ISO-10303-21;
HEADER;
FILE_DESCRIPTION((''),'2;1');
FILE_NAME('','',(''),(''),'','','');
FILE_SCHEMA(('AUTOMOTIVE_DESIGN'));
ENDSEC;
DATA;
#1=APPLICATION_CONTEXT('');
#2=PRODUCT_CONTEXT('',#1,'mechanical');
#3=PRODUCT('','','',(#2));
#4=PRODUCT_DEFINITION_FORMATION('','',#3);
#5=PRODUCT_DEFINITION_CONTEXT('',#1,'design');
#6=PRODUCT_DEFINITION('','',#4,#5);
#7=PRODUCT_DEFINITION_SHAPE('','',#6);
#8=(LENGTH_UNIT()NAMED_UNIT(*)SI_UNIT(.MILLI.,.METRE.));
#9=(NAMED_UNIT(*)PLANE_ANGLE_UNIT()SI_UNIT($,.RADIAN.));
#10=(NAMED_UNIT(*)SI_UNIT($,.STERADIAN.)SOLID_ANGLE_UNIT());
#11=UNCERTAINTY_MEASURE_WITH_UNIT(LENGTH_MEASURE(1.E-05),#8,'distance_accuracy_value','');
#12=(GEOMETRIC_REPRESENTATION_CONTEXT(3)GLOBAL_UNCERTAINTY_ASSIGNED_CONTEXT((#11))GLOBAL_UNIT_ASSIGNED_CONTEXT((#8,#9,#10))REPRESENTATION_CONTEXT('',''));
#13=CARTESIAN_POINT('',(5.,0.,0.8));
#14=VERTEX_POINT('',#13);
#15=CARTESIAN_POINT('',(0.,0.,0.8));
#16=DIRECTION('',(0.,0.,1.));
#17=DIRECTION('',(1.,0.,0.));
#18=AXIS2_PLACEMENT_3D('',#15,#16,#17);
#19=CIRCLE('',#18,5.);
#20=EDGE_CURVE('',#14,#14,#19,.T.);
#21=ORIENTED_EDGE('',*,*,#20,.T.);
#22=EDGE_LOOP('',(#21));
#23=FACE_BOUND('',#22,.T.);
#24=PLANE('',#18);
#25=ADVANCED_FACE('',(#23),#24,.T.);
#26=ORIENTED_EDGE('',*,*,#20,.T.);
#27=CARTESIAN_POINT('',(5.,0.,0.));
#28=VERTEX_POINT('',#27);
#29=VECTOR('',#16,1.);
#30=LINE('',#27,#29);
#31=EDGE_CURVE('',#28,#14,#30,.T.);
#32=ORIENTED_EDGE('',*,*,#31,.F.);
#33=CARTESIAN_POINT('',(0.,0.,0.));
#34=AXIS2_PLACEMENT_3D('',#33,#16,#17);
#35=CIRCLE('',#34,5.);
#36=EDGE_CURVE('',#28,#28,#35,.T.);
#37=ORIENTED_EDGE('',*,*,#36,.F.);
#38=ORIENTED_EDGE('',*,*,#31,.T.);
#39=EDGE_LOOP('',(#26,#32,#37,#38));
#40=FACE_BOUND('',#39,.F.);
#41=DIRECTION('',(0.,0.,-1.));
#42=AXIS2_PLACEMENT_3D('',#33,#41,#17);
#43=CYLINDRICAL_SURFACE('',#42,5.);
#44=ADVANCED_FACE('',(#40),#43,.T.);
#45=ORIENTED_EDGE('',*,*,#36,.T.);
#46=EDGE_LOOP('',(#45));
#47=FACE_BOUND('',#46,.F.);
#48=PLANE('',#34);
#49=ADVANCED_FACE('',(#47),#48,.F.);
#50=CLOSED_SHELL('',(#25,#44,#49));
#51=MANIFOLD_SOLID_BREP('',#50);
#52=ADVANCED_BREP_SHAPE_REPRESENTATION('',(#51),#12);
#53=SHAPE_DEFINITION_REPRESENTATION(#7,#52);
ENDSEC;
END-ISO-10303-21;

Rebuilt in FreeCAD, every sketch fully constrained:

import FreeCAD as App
import Part
import Sketcher

V = App.Vector
Q = App.Units.Quantity

doc = App.newDocument("Part")
body = doc.addObject("PartDesign::Body", "Body")

sketch1 = body.newObject("Sketcher::SketchObject", "Sketch")
sketch1.AttachmentSupport = (doc.getObject("XY_Plane"), [""])
sketch1.MapMode = "FlatFace"
sketch1.addGeometry(Part.Circle(V(0, 0, 0), V(0, 0, 1), 5), False)
sketch1.addConstraint([
    Sketcher.Constraint("Coincident", 0, 3, -1, 1),
    Sketcher.Constraint("Diameter", 0, Q("10 mm")),
])
pad1 = body.newObject("PartDesign::Pad", "Pad")
pad1.Profile = sketch1
pad1.Length = 0.8

doc.recompute()
